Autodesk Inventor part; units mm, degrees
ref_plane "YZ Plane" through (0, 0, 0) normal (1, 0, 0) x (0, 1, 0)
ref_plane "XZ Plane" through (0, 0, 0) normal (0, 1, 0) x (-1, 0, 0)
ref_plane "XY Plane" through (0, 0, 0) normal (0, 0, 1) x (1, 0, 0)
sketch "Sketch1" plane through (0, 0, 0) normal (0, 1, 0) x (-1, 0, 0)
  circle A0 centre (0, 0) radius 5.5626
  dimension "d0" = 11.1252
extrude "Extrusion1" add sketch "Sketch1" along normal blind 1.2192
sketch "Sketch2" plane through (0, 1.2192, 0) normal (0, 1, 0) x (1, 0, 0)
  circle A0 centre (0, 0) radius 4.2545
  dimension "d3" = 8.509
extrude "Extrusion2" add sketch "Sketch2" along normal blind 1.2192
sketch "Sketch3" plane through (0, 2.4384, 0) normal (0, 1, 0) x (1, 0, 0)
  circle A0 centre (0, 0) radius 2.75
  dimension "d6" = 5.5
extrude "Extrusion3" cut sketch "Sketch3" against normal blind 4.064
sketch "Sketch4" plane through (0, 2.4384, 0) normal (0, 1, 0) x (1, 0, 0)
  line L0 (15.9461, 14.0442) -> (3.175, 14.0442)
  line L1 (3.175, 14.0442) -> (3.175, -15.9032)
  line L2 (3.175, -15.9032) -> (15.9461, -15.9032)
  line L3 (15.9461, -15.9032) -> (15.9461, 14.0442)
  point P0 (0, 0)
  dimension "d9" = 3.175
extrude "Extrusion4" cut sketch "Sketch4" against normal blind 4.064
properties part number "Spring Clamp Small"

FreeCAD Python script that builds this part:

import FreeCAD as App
import Part
import Sketcher
Q = App.Units.Quantity

doc = App.newDocument("Part")
body = doc.addObject("PartDesign::Body", "Body")

# Sketch on XZ plane
sketch1 = doc.addObject("Sketcher::SketchObject", "Sketch")
body.addObject(sketch1)
sketch1.AttachmentSupport = (doc.XZ_Plane, [""])
sketch1.MapMode = "FlatFace"
sketch1.addGeometry(Part.Circle(App.Vector(0, 0, 0), App.Vector(0, 0, 1), 6), False)
sketch1.addConstraint([
    Sketcher.Constraint("Coincident", 0, 3, -1, 1),
    Sketcher.Constraint("Diameter", 0, Q("0.438 in")),
])
pad1 = doc.addObject("PartDesign::Pad", "Pad")
body.addObject(pad1)
pad1.Profile = sketch1
pad1.Length = Q("0.048 in")
pad1.Reversed = True

# Sketch on XZ plane
sketch2 = doc.addObject("Sketcher::SketchObject", "Sketch001")
body.addObject(sketch2)
sketch2.AttachmentSupport = (doc.XZ_Plane, [""])
sketch2.MapMode = "FlatFace"
sketch2.AttachmentOffset = App.Placement(App.Vector(0, 0, -0.048 * 25.4), App.Rotation())
sketch2.addGeometry(Part.Circle(App.Vector(0, 0, 0), App.Vector(0, 0, 1), 4.3), False)
sketch2.addConstraint([
    Sketcher.Constraint("Coincident", 0, 3, -1, 1),
    Sketcher.Constraint("Diameter", 0, Q("0.335 in")),
])
pad2 = doc.addObject("PartDesign::Pad", "Pad001")
body.addObject(pad2)
pad2.Profile = sketch2
pad2.Length = Q("0.048 in")
pad2.Reversed = True

# Sketch on XZ plane
sketch3 = doc.addObject("Sketcher::SketchObject", "Sketch002")
body.addObject(sketch3)
sketch3.AttachmentSupport = (doc.XZ_Plane, [""])
sketch3.MapMode = "FlatFace"
sketch3.AttachmentOffset = App.Placement(App.Vector(0, 0, -0.096 * 25.4), App.Rotation())
sketch3.addGeometry(Part.Circle(App.Vector(0, 0, 0), App.Vector(0, 0, 1), 2.8), False)
sketch3.addConstraint([
    Sketcher.Constraint("Coincident", 0, 3, -1, 1),
    Sketcher.Constraint("Diameter", 0, 5.5),
])
pocket1 = doc.addObject("PartDesign::Pocket", "Pocket")
body.addObject(pocket1)
pocket1.Profile = sketch3
pocket1.Length = Q("0.16 in")
pocket1.Reversed = True

# Sketch on XZ plane
sketch4 = doc.addObject("Sketcher::SketchObject", "Sketch003")
body.addObject(sketch4)
sketch4.AttachmentSupport = (doc.XZ_Plane, [""])
sketch4.MapMode = "FlatFace"
sketch4.AttachmentOffset = App.Placement(App.Vector(0, 0, -0.096 * 25.4), App.Rotation())
sketch4.addGeometry([
    Part.LineSegment(App.Vector(16, 16, 0), App.Vector(16, -14, 0)),
    Part.LineSegment(App.Vector(16, -14, 0), App.Vector(3, -14, 0)),
    Part.LineSegment(App.Vector(3, -14, 0), App.Vector(3, 16, 0)),
    Part.LineSegment(App.Vector(3, 16, 0), App.Vector(16, 16, 0)),
], False)
sketch4.addConstraint([
    Sketcher.Constraint("Coincident", 0, 2, 1, 1),
    Sketcher.Constraint("Coincident", 1, 2, 2, 1),
    Sketcher.Constraint("Coincident", 2, 2, 3, 1),
    Sketcher.Constraint("Coincident", 3, 2, 0, 1),
    Sketcher.Constraint("Vertical", 0),
    Sketcher.Constraint("Horizontal", 1),
    Sketcher.Constraint("Vertical", 2),
    Sketcher.Constraint("Horizontal", 3),
    Sketcher.Constraint("DistanceX", -1, 1, 1, 2, Q("0.125 in")),
    Sketcher.Constraint("DistanceX", 1, 2, 1, 1, Q("0.5028 in")),
    Sketcher.Constraint("DistanceY", 0, 2, 0, 1, 29.9474),
    Sketcher.Constraint("DistanceY", -1, 1, 2, 2, Q("0.6261 in")),
])
pocket2 = doc.addObject("PartDesign::Pocket", "Pocket001")
body.addObject(pocket2)
pocket2.Profile = sketch4
pocket2.Length = Q("0.16 in")
pocket2.Reversed = True

doc.recompute()
